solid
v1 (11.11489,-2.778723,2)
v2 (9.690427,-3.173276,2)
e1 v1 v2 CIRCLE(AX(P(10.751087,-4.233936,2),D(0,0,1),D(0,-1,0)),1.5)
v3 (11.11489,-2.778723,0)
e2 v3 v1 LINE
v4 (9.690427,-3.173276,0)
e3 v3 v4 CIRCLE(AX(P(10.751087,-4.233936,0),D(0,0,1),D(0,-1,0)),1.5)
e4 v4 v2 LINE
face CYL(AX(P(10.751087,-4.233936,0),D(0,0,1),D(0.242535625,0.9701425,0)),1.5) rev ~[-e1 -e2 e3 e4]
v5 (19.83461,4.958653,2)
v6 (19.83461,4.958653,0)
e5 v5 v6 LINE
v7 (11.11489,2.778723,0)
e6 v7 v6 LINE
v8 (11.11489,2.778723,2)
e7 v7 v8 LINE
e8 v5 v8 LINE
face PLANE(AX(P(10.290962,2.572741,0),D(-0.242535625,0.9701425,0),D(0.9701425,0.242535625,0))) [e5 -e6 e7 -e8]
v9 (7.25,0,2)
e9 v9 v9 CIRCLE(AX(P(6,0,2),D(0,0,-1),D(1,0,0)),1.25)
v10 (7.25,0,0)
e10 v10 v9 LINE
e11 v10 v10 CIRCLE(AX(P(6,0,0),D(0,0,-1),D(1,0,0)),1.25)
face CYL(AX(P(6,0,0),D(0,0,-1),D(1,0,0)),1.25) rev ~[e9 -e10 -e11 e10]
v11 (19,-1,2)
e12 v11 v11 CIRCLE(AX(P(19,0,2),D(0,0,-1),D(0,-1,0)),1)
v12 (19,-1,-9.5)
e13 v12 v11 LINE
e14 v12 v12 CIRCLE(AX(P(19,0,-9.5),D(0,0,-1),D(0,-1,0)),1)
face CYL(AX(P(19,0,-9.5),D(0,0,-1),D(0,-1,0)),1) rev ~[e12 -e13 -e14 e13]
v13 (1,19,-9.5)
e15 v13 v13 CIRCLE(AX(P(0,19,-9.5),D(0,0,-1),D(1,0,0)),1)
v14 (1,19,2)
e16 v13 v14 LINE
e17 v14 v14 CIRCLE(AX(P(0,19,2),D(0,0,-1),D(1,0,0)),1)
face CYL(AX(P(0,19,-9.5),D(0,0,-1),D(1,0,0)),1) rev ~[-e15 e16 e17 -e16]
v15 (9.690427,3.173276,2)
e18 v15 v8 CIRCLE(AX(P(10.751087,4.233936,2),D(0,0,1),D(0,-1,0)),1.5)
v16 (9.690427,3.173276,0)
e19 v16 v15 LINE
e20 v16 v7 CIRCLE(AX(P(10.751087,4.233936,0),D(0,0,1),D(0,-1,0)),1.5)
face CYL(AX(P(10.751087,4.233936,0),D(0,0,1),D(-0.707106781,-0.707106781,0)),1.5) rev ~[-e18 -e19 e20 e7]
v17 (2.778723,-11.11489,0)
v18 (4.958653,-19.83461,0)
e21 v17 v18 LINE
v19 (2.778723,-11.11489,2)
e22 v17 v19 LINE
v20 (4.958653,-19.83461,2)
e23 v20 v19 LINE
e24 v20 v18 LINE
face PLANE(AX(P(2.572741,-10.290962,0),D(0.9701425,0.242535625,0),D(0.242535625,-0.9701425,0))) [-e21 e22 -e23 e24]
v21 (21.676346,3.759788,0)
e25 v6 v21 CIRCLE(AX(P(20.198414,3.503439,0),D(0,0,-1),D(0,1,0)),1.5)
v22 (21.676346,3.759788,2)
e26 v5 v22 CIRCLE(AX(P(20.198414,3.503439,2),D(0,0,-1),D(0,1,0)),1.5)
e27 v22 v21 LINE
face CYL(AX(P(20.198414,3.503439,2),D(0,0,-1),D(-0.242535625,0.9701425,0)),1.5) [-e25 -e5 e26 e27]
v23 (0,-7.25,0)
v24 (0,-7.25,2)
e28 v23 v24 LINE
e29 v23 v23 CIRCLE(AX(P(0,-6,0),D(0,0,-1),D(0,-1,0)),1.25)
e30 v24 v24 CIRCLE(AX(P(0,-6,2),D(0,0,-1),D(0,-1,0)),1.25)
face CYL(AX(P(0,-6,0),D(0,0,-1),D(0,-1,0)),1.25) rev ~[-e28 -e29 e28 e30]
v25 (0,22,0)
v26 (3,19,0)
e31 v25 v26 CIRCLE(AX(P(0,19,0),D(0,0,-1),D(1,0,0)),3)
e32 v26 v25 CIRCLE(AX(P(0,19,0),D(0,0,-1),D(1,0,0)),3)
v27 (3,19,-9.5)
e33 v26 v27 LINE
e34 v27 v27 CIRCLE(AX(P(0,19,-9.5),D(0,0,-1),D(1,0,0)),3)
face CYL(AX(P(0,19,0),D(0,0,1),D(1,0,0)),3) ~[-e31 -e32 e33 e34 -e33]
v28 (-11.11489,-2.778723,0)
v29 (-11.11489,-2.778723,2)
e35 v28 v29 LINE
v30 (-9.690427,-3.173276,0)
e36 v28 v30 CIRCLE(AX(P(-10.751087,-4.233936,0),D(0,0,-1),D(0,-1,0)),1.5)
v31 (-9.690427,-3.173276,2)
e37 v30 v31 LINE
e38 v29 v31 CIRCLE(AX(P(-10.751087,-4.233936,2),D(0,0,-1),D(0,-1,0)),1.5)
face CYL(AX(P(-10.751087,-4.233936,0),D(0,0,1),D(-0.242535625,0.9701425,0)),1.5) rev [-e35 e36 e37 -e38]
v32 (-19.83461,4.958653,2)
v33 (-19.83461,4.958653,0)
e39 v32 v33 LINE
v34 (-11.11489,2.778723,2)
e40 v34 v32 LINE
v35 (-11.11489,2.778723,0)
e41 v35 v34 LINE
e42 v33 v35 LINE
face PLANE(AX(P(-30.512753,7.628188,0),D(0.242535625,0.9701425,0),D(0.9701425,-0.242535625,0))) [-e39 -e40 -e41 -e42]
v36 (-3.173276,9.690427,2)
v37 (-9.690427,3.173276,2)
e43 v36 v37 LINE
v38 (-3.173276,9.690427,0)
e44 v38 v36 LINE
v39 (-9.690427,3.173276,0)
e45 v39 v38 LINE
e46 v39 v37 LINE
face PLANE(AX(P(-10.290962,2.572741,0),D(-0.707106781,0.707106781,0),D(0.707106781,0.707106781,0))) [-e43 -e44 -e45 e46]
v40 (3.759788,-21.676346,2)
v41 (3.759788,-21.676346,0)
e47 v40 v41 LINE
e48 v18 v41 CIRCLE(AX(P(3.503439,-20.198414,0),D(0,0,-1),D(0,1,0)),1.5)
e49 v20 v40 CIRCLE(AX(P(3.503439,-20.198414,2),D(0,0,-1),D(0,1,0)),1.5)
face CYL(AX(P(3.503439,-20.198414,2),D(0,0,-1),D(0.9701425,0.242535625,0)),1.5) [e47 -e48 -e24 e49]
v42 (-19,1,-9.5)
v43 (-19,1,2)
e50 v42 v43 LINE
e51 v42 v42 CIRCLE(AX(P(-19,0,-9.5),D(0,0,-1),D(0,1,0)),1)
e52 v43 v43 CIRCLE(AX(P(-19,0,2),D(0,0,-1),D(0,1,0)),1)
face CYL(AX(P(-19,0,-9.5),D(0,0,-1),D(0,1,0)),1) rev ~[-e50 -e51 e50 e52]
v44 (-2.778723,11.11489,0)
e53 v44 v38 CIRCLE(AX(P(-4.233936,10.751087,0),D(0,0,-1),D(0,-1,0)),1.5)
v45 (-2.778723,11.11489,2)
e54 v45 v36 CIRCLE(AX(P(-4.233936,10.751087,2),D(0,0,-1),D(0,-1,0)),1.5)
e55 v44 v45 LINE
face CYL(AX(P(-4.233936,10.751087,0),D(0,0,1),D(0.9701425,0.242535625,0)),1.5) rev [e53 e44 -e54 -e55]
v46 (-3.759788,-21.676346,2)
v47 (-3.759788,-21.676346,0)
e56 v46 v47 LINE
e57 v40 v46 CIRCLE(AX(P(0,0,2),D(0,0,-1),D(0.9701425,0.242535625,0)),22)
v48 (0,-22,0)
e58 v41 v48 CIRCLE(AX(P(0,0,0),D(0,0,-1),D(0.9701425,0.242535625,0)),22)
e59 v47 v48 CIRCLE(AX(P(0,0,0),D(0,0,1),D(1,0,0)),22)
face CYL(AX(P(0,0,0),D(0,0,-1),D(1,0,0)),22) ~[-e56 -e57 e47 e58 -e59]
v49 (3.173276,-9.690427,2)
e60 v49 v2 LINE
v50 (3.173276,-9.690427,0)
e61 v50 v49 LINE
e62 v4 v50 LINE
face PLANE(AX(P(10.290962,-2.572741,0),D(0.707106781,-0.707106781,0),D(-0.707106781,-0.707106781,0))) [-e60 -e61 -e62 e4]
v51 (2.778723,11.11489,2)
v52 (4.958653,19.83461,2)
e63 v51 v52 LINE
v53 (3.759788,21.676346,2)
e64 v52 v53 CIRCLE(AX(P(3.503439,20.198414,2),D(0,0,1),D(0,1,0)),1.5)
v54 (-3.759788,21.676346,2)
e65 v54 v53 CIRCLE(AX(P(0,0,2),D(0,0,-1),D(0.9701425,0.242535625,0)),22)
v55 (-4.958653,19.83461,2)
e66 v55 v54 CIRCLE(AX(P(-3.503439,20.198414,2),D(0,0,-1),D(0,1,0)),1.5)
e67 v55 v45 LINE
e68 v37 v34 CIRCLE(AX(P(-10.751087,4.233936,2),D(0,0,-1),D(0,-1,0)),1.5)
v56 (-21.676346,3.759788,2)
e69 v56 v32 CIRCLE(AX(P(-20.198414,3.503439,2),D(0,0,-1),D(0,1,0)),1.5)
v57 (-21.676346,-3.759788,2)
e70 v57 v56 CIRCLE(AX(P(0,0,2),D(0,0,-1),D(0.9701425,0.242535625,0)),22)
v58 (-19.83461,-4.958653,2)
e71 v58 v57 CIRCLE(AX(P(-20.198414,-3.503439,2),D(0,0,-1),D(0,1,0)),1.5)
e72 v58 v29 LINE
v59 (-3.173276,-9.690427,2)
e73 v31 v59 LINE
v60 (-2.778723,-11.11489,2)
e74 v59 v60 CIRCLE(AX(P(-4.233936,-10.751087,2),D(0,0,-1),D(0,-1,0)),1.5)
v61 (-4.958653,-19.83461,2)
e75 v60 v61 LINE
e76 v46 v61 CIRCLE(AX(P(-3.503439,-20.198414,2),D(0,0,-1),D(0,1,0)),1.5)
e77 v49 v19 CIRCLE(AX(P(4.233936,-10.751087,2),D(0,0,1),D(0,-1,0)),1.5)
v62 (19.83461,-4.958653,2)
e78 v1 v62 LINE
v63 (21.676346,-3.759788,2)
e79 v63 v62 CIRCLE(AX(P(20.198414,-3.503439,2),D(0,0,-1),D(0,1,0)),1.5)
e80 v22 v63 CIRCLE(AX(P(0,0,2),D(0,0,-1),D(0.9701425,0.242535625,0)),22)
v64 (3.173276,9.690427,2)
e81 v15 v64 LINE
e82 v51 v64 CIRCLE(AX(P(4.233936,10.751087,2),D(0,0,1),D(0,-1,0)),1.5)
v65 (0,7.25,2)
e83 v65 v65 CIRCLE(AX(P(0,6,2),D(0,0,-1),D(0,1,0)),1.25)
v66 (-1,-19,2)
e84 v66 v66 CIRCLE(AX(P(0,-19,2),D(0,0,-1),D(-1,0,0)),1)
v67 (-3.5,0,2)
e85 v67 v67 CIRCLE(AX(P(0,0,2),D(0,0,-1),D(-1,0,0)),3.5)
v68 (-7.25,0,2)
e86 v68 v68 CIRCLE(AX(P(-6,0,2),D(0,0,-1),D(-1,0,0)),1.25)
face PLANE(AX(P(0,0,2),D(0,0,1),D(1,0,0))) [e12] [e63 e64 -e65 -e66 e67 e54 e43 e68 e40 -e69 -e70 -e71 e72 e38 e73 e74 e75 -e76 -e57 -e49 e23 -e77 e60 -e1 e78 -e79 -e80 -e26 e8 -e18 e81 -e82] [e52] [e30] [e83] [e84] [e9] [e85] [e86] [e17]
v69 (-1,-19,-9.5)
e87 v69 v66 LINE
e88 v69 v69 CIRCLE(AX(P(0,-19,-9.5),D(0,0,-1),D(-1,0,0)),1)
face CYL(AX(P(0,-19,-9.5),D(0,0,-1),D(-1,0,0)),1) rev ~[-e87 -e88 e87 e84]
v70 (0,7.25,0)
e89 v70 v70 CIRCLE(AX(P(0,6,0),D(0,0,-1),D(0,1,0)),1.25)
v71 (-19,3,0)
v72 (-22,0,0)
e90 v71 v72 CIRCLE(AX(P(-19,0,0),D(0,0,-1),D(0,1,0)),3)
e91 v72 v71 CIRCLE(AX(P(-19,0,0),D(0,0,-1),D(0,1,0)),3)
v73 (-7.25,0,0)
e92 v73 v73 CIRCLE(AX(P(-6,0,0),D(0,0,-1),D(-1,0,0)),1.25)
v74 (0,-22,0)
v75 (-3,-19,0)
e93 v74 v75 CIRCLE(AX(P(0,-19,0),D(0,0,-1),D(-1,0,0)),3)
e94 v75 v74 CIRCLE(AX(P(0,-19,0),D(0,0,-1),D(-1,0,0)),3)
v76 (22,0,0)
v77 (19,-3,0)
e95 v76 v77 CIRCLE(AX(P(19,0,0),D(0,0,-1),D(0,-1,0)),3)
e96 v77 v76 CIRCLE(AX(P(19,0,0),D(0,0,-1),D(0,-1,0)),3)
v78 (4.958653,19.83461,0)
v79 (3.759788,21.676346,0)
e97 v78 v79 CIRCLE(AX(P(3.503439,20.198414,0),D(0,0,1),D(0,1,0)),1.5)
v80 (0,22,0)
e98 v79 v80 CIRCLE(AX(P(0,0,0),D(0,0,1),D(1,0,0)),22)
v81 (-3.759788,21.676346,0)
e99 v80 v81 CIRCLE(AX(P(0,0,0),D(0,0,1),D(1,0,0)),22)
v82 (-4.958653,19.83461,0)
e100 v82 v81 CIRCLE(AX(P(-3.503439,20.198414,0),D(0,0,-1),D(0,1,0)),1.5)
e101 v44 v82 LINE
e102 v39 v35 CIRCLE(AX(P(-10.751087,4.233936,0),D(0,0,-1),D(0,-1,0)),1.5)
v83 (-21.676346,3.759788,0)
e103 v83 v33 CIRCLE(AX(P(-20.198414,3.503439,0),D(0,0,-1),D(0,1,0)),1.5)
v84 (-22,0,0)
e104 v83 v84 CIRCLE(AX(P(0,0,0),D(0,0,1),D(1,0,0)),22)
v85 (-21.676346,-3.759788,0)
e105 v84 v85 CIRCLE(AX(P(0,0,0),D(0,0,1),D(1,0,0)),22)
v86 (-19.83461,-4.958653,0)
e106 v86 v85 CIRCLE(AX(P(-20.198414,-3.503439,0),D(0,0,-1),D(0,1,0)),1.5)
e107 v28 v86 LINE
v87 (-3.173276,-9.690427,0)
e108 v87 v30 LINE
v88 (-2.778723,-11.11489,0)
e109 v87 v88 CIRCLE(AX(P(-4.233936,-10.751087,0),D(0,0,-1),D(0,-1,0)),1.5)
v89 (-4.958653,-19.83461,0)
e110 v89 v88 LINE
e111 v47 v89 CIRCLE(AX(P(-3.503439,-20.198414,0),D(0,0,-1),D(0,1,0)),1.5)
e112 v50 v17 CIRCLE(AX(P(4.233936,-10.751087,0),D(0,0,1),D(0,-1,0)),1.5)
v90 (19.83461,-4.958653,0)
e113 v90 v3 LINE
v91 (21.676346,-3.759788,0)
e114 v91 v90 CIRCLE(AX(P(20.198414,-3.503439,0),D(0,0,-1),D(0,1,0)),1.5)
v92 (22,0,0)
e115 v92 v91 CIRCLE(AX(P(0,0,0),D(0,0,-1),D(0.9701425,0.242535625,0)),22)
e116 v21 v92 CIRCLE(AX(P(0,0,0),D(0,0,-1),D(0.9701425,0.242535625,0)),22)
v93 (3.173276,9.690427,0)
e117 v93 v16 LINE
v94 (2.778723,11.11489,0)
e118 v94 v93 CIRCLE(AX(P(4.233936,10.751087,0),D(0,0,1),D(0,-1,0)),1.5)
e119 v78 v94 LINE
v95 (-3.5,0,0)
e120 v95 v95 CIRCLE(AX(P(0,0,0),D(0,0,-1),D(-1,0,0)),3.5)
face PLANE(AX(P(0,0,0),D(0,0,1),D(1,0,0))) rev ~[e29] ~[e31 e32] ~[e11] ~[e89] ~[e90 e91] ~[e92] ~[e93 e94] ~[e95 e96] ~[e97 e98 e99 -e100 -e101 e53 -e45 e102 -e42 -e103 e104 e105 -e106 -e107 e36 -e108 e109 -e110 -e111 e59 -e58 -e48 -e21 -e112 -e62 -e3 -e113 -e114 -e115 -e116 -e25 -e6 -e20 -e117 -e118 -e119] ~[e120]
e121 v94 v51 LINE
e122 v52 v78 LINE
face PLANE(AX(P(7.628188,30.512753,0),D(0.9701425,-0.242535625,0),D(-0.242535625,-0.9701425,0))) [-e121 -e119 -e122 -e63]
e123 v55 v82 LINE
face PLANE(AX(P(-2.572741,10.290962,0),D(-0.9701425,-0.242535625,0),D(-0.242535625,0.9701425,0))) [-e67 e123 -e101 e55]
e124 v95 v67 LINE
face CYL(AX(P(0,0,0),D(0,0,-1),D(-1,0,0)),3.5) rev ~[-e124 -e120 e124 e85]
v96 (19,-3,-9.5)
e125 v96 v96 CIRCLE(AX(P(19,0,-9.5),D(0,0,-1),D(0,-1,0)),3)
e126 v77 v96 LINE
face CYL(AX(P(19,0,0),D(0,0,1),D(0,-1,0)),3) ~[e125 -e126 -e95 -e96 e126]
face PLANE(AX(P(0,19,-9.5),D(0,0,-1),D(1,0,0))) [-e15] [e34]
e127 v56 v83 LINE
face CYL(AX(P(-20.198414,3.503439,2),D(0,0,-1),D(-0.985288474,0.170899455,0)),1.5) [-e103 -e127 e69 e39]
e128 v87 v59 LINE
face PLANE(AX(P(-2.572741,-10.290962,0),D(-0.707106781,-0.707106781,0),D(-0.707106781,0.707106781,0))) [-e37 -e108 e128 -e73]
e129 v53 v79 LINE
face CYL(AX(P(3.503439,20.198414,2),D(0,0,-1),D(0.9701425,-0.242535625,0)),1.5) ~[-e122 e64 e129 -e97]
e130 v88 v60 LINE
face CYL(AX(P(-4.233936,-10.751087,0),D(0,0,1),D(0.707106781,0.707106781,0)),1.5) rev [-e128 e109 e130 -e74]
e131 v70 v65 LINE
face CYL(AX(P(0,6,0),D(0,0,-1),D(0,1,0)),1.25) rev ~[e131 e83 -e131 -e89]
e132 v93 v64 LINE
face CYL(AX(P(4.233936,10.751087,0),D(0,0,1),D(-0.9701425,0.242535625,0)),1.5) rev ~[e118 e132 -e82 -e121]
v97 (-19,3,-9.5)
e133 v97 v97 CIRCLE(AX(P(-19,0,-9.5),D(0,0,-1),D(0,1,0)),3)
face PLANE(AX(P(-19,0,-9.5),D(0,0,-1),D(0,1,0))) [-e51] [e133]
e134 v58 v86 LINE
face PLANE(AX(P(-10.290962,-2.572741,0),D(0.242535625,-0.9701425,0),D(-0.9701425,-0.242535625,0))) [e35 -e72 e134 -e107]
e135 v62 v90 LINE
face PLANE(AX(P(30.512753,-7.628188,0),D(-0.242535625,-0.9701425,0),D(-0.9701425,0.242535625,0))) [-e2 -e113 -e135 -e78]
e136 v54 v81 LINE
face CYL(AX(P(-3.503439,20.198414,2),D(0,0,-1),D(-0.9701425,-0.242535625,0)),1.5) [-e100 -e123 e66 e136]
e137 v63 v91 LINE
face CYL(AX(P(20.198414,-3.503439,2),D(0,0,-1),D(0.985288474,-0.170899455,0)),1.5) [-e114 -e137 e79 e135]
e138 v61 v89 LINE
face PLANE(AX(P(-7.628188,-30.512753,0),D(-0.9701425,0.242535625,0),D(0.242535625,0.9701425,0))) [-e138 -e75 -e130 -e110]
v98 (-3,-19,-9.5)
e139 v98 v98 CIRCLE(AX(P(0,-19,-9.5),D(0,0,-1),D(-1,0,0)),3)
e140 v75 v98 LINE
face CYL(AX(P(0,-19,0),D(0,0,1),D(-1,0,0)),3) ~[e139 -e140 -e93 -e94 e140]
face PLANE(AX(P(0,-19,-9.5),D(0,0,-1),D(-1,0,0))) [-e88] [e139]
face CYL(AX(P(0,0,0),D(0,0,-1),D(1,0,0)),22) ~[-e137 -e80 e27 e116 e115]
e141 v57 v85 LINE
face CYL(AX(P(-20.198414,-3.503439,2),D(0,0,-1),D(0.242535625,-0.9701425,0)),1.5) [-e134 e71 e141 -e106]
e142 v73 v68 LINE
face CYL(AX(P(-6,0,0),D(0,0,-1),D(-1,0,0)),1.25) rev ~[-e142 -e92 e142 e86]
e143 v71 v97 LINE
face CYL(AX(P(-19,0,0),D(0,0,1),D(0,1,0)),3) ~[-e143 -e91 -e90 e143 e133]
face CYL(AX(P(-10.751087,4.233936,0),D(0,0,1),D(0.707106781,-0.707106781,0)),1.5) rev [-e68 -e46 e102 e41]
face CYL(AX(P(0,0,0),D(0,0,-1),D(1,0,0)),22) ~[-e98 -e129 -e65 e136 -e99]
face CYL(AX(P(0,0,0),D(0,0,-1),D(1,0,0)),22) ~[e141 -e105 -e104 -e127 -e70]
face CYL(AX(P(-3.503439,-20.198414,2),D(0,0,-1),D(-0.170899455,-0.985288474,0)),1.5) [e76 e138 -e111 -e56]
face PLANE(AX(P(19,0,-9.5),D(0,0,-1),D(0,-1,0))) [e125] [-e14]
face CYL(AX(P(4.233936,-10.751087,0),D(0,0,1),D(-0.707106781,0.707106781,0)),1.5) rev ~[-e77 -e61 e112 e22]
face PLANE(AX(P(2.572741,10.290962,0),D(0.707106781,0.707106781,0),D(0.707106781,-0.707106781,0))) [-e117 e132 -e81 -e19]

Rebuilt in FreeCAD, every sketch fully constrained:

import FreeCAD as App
import Part
import Sketcher
Q = App.Units.Quantity


def edges_at(feature, points):
    """Names of the edges that pass closest to the given points."""
    edges = feature.Shape.Edges
    near = lambda p: min(range(len(edges)), key=lambda i: edges[i].distToShape(Part.Vertex(*p))[0])
    return sorted({f"Edge{near(p) + 1}" for p in points})


def add_polygon(sketch, points):
    """Adds a closed chain of lines whose ends are joined by coincident constraints."""
    first, n = sketch.GeometryCount, len(points)
    for a, b in zip(points, points[1:] + points[:1]):
        sketch.addGeometry(Part.LineSegment(App.Vector(*a, 0), App.Vector(*b, 0)), False)
    for i in range(n):
        sketch.addConstraint(Sketcher.Constraint("Coincident", first + i, 2, first + (i + 1) % n, 1))

doc = App.newDocument("Part")
body = doc.addObject("PartDesign::Body", "Body")

sketch1 = doc.addObject("Sketcher::SketchObject", "Sketch")
body.addObject(sketch1)
sketch1.AttachmentSupport = (doc.XY_Plane, [""])
sketch1.MapMode = "FlatFace"
sketch1.addGeometry(Part.Circle(App.Vector(0, 0, 0), App.Vector(0, 0, 1), 22), False)
sketch1.addConstraint([
    Sketcher.Constraint("Coincident", 0, 3, -1, 1),
    Sketcher.Constraint("Diameter", 0, Q("44 mm")),
])
pad1 = doc.addObject("PartDesign::Pad", "Pad")
body.addObject(pad1)
pad1.Profile = sketch1
pad1.Length = 2

sketch2 = doc.addObject("Sketcher::SketchObject", "Sketch001")
body.addObject(sketch2)
sketch2.AttachmentSupport = (doc.XY_Plane, [""])
sketch2.MapMode = "FlatFace"
sketch2.addGeometry(Part.Circle(App.Vector(-6, 0, 0), App.Vector(0, 0, 1), 1.2), False)
sketch2.addConstraint([
    Sketcher.Constraint("PointOnObject", 0, 3, -1),
    Sketcher.Constraint("Diameter", 0, Q("2.5 mm")),
    Sketcher.Constraint("DistanceX", 0, 3, -1, 1, Q("6 mm")),
])
pocket1 = doc.addObject("PartDesign::Pocket", "Pocket")
body.addObject(pocket1)
pocket1.Profile = sketch2
pocket1.Length = 3
pocket1.Reversed = True

sketch3 = doc.addObject("Sketcher::SketchObject", "Sketch002")
body.addObject(sketch3)
sketch3.AttachmentSupport = (doc.XY_Plane, [""])
sketch3.MapMode = "FlatFace"
sketch3.addGeometry(Part.Circle(App.Vector(0, 0, 0), App.Vector(0, 0, 1), 3.5), False)
sketch3.addConstraint([
    Sketcher.Constraint("Coincident", 0, 3, -1, 1),
    Sketcher.Constraint("Diameter", 0, Q("7 mm")),
])
pocket2 = doc.addObject("PartDesign::Pocket", "Pocket001")
body.addObject(pocket2)
pocket2.Profile = sketch3
pocket2.Length = 3
pocket2.Reversed = True

sketch4 = doc.addObject("Sketcher::SketchObject", "Sketch003")
body.addObject(sketch4)
sketch4.AttachmentSupport = (doc.XY_Plane, [""])
sketch4.MapMode = "FlatFace"
sketch4.addGeometry(Part.Circle(App.Vector(0, -19, 0), App.Vector(0, 0, 1), 3), False)
sketch4.addConstraint([
    Sketcher.Constraint("PointOnObject", 0, 3, -2),
    Sketcher.Constraint("Diameter", 0, Q("6 mm")),
    Sketcher.Constraint("DistanceY", 0, 3, -1, 1, Q("19 mm")),
])
pad2 = doc.addObject("PartDesign::Pad", "Pad001")
body.addObject(pad2)
pad2.Profile = sketch4
pad2.Length = 9.5
pad2.Reversed = True

sketch5 = doc.addObject("Sketcher::SketchObject", "Sketch004")
body.addObject(sketch5)
sketch5.AttachmentSupport = (doc.XY_Plane, [""])
sketch5.MapMode = "FlatFace"
sketch5.AttachmentOffset = App.Placement(App.Vector(0, 0, -9.5), App.Rotation())
sketch5.addGeometry(Part.Circle(App.Vector(0, -19, 0), App.Vector(0, 0, 1), 1), False)
sketch5.addConstraint([
    Sketcher.Constraint("PointOnObject", 0, 3, -2),
    Sketcher.Constraint("Diameter", 0, Q("2 mm")),
    Sketcher.Constraint("DistanceY", 0, 3, -1, 1, Q("19 mm")),
])
pocket3 = doc.addObject("PartDesign::Pocket", "Pocket002")
body.addObject(pocket3)
pocket3.Profile = sketch5
pocket3.Length = 11.5
pocket3.Reversed = True

sketch6 = doc.addObject("Sketcher::SketchObject", "Sketch005")
body.addObject(sketch6)
sketch6.AttachmentSupport = (doc.XY_Plane, [""])
sketch6.MapMode = "FlatFace"
add_polygon(sketch6, [(10, 3), (3, 10), (8, 31), (31, 8)])
sketch6.addConstraint([
    Sketcher.Constraint("Parallel", 0, 2),
    Sketcher.Constraint("Equal", 1, 3),
    Sketcher.Constraint("Angle", 0, Q("135 deg")),
    Sketcher.Constraint("Distance", 2, Q("32.363661 mm")),
    Sketcher.Constraint("DistanceX", -1, 1, 0, 2, Q("2.572741 mm")),
    Sketcher.Constraint("DistanceX", -1, 1, 1, 2, Q("7.628188 mm")),
    Sketcher.Constraint("DistanceY", -1, 1, 2, 2, Q("7.628188 mm")),
    Sketcher.Constraint("DistanceY", 0, 2, 1, 2, Q("20.22179 mm")),
])
pocket4 = doc.addObject("PartDesign::Pocket", "Pocket003")
body.addObject(pocket4)
pocket4.Profile = sketch6
pocket4.Length = 6
pocket4.Reversed = True
doc.recompute()

polarpattern = doc.addObject("PartDesign::PolarPattern", "PolarPattern")
body.addObject(polarpattern)
polarpattern.Originals = [pocket1, pad2, pocket3, pocket4]
polarpattern.Axis = (doc.Z_Axis, [""])
polarpattern.Angle = 360
polarpattern.Occurrences = 4
body.Tip = polarpattern
doc.recompute()

fillet = doc.addObject("PartDesign::Fillet", "Fillet")
body.addObject(fillet)
fillet.Base = (polarpattern, edges_at(polarpattern, [
    (-5.336, -21.343, 1),
    (-21.343, -5.336, 1),
    (21.343, -5.336, 1),
    (5.336, -21.343, 1),
    (5.336, 21.343, 1),
    (21.343, 5.336, 1),
    (-21.343, 5.336, 1),
    (-5.336, 21.343, 1),
]))
fillet.Radius = 1.5
doc.recompute()

fillet2 = doc.addObject("PartDesign::Fillet", "Fillet001")
body.addObject(fillet2)
fillet2.Base = (fillet, edges_at(fillet, [
    (-10.291, -2.573, 1),
    (-2.573, -10.291, 1),
    (2.573, -10.291, 1),
    (10.291, -2.573, 1),
    (10.291, 2.573, 1),
    (2.573, 10.291, 1),
    (-2.573, 10.291, 1),
    (-10.291, 2.573, 1),
]))
fillet2.Radius = 1.5

doc.recompute()
